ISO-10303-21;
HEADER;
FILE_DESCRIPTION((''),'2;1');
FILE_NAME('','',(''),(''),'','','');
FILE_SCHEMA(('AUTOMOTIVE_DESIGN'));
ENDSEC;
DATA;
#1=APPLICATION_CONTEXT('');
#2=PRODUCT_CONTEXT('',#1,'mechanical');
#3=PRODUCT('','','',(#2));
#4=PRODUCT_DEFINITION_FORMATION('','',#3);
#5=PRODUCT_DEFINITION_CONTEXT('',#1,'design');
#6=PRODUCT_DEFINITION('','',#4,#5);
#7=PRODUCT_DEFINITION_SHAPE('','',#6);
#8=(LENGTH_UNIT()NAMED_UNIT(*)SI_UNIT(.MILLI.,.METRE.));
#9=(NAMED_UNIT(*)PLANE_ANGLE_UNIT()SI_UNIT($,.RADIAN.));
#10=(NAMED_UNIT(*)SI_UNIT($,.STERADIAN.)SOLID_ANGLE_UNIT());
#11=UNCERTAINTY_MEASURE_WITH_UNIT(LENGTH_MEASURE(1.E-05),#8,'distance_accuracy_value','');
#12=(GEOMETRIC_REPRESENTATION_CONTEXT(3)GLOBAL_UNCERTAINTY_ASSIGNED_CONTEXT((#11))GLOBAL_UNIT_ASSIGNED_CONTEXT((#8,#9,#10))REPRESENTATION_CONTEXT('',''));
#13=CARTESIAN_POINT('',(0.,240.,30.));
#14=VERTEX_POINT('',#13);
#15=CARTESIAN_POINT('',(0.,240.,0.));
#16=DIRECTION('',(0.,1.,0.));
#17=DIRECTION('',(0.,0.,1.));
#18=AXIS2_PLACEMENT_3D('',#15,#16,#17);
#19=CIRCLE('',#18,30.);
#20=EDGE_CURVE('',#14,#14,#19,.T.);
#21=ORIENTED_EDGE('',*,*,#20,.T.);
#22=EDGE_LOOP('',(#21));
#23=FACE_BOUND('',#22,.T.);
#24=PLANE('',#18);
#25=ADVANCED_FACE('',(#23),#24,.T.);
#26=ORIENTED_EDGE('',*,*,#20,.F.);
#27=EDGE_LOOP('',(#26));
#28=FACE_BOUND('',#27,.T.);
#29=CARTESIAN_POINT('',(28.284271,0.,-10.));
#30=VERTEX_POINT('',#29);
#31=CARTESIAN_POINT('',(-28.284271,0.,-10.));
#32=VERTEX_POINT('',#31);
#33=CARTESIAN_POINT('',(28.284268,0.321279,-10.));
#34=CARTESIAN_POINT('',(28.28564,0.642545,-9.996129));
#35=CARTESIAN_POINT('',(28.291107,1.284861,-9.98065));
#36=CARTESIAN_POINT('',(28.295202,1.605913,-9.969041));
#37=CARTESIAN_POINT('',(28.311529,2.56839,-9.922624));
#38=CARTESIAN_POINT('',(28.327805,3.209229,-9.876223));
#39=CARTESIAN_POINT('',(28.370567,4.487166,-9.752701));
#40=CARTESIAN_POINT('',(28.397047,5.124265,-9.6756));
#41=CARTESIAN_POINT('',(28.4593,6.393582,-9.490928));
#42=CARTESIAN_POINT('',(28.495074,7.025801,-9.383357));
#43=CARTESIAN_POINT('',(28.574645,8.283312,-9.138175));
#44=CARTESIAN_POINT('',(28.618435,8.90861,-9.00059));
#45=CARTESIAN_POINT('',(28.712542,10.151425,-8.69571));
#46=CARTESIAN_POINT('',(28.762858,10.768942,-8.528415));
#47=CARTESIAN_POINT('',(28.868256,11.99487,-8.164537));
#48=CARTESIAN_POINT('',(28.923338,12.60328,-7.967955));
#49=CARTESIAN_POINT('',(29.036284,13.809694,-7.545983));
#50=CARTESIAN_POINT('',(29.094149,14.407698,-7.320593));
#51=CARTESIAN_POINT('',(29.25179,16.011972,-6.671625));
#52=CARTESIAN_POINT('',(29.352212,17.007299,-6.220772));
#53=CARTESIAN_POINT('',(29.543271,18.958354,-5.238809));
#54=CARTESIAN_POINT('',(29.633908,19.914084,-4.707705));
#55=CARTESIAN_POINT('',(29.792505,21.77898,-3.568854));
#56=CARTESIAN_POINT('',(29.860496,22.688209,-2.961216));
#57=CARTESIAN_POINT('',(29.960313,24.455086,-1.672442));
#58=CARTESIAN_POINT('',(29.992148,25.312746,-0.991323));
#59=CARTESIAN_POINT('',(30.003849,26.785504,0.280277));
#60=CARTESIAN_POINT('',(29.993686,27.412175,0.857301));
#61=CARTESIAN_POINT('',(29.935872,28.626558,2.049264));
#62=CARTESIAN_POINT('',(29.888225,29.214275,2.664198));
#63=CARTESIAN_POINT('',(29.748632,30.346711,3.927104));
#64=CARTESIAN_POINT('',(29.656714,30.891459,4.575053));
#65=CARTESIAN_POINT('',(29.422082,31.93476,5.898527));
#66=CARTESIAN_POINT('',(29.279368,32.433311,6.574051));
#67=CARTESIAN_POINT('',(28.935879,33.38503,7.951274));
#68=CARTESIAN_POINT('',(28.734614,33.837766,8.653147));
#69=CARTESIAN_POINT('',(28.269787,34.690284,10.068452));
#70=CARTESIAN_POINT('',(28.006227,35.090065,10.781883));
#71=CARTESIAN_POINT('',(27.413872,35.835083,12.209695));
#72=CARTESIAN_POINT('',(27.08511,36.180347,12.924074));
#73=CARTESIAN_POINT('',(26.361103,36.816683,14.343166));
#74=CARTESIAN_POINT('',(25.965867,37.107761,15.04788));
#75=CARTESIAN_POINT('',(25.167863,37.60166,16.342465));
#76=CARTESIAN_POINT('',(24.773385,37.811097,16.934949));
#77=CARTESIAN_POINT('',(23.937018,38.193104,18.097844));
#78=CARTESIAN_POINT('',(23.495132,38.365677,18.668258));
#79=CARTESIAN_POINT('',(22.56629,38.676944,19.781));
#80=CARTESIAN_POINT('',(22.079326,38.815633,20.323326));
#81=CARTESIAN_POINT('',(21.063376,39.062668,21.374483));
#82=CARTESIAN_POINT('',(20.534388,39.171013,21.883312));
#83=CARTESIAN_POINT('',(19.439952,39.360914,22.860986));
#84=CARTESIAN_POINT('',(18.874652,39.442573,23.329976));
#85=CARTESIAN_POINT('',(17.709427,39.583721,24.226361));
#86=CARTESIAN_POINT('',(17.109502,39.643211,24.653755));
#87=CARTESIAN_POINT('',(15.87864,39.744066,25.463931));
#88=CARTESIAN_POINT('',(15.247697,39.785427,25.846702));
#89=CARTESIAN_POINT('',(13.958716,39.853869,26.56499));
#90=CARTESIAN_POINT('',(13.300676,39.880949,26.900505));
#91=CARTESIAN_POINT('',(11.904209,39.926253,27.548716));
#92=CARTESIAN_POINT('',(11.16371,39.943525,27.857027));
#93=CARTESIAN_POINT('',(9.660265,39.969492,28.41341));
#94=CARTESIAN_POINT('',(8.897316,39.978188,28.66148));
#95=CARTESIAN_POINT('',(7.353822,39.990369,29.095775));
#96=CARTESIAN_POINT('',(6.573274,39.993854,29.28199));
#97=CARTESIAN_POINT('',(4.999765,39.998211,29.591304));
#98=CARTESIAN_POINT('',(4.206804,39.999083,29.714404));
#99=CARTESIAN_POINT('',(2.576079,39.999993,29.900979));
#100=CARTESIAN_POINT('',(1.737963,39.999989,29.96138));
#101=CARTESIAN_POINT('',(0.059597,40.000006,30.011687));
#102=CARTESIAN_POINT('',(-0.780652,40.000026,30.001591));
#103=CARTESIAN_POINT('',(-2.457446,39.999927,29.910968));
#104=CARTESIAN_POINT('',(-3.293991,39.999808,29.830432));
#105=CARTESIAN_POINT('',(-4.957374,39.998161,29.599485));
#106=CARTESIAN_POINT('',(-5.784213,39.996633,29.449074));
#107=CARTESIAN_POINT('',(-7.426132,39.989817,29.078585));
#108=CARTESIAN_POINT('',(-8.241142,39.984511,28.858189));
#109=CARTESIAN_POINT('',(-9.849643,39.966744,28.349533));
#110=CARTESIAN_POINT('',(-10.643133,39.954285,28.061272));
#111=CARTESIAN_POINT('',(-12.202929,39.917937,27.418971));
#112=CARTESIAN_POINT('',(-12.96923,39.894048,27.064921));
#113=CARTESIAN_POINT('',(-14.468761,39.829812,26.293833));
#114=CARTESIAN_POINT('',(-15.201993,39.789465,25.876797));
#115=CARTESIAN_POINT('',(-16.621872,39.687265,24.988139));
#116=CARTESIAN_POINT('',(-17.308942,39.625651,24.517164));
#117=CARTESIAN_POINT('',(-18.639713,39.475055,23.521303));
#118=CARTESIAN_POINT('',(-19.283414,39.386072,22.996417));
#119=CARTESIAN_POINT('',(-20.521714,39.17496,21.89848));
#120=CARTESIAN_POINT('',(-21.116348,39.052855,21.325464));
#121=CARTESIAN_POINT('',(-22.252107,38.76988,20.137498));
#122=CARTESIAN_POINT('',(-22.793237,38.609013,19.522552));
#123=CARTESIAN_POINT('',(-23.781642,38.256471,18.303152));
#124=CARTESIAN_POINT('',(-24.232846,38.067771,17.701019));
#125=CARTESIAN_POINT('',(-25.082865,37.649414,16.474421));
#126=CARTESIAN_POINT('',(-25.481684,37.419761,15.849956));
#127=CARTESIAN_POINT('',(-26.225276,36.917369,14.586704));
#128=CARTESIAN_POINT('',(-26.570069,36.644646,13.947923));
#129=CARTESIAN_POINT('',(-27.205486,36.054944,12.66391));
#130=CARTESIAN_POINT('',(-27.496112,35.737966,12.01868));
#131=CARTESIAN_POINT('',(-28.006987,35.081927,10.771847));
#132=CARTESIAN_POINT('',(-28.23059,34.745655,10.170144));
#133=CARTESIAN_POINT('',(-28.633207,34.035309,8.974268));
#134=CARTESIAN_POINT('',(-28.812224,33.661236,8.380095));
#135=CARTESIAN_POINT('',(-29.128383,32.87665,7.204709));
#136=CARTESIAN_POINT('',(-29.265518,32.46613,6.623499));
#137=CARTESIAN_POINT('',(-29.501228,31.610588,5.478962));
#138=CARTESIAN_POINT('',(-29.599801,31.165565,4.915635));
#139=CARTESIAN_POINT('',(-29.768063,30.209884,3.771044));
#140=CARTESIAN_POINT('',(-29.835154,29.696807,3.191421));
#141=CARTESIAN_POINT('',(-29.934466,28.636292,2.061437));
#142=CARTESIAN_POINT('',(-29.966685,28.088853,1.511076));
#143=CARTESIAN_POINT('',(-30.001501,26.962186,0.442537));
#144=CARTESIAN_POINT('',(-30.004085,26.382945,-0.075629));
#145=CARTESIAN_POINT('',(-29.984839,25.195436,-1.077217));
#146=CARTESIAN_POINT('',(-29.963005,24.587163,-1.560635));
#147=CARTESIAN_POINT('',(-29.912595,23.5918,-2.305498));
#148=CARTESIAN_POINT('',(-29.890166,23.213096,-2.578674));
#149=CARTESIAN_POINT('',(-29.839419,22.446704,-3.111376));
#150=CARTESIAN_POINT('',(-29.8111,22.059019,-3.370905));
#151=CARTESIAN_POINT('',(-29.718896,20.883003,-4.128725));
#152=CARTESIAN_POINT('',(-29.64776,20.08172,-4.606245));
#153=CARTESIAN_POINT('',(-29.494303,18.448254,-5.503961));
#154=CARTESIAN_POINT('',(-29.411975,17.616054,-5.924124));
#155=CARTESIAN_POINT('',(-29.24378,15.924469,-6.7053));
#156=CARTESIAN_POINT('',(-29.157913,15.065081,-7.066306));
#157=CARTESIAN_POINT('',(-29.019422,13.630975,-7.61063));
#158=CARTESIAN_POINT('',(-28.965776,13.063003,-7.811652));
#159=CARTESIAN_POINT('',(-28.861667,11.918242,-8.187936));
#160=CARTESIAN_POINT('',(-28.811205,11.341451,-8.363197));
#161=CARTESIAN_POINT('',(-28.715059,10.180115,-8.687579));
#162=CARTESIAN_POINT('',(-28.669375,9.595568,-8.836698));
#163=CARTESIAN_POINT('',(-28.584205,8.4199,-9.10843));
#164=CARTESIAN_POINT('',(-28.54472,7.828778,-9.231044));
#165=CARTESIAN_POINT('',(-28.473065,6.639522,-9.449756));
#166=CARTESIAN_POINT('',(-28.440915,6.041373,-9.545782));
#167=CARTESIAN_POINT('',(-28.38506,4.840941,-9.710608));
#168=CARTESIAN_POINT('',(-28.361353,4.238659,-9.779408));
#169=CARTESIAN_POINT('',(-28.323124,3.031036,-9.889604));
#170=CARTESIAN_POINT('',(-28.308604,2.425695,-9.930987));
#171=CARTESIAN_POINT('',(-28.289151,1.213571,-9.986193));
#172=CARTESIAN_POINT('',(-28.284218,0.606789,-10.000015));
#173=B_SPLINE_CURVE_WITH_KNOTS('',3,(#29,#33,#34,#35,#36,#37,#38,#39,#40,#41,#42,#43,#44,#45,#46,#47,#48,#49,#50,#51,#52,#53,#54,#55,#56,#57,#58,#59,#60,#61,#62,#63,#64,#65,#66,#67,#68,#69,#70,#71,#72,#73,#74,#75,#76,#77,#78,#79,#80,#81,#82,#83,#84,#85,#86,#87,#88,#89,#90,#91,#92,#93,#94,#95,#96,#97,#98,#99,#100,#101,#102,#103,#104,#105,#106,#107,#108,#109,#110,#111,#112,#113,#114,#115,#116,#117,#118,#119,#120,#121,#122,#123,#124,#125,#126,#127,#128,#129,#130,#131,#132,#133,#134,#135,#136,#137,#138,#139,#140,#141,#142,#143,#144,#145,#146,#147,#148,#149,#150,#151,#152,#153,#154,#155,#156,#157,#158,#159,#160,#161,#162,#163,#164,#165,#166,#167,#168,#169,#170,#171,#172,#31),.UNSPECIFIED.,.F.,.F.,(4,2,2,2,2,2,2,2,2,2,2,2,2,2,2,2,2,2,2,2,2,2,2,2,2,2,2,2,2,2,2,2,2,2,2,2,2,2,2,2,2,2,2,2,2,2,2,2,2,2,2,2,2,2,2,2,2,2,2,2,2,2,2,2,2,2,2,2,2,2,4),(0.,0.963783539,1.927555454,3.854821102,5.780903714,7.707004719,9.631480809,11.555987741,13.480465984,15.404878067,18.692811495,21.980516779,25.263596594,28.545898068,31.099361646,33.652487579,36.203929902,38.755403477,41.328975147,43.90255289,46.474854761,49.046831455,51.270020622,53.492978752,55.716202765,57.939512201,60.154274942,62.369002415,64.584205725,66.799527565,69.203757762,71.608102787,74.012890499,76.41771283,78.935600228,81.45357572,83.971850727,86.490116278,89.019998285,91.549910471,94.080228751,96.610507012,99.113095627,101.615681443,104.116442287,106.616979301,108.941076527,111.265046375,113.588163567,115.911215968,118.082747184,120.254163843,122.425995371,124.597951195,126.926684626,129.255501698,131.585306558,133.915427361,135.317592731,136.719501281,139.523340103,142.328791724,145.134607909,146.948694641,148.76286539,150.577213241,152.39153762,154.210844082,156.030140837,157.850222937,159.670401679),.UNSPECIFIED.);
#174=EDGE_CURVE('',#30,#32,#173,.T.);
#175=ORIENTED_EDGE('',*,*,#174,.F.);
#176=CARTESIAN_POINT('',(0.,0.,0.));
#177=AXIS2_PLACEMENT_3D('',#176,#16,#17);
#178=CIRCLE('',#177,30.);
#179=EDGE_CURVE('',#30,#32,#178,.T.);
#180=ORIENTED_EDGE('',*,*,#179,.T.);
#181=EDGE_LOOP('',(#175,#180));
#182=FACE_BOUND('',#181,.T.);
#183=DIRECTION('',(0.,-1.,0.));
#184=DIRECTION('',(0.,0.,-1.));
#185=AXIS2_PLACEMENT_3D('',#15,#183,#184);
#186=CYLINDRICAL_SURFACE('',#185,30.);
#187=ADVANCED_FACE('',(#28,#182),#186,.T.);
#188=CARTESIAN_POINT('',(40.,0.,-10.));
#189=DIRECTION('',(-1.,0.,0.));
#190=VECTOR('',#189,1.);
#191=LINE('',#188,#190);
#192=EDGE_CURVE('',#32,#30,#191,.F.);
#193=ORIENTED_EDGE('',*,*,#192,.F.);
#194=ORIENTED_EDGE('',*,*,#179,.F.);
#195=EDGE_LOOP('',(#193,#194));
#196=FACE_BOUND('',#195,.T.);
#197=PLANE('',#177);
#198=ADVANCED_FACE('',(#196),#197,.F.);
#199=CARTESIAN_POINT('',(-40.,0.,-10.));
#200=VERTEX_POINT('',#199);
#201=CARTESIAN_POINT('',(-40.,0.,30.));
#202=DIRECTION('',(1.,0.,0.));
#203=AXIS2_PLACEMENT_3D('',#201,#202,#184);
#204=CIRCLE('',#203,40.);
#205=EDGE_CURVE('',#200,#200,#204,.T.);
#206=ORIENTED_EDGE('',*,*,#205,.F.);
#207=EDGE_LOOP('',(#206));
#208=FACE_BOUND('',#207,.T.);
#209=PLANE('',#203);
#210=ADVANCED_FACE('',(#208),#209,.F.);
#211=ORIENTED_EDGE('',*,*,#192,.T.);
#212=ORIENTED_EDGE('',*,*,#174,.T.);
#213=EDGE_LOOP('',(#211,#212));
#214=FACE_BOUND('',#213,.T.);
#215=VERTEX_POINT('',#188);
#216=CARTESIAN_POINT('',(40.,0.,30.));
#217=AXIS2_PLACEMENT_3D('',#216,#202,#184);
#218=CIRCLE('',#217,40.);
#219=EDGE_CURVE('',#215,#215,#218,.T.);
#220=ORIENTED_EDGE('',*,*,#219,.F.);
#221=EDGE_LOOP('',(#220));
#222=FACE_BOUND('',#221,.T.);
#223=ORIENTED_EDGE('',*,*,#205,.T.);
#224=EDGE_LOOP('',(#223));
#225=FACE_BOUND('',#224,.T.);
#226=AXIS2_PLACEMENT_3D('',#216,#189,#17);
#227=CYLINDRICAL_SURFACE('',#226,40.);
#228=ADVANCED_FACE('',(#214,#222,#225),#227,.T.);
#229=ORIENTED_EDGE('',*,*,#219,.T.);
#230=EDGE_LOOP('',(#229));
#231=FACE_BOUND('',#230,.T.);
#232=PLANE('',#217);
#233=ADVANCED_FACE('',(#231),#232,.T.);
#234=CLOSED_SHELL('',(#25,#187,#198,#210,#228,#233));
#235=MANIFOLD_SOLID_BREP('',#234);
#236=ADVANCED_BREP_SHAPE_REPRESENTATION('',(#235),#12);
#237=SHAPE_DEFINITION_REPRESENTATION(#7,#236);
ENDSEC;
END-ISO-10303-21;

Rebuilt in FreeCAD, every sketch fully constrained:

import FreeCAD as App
import Part
import Sketcher

V = App.Vector

doc = App.newDocument("Part")
body = doc.addObject("PartDesign::Body", "Body")

# Sketch on XZ plane
sketch1 = body.newObject("Sketcher::SketchObject", "Sketch")
sketch1.AttachmentSupport = (doc.getObject("XZ_Plane"), [""])
sketch1.MapMode = "FlatFace"
sketch1.addGeometry(Part.Circle(V(0, 0, 0), V(0, 0, 1), 30), False)
sketch1.addConstraint(Sketcher.Constraint("Coincident", 0, 3, -1, 1))
sketch1.addConstraint(Sketcher.Constraint("Diameter", 0, 60.0))
pad1 = body.newObject("PartDesign::Pad", "Pad")
pad1.Profile = sketch1
pad1.Length = 240
pad1.Reversed = True

# Sketch on YZ plane
sketch2 = body.newObject("Sketcher::SketchObject", "Sketch001")
sketch2.AttachmentSupport = (doc.getObject("YZ_Plane"), [""])
sketch2.MapMode = "FlatFace"
sketch2.addGeometry(Part.Circle(V(0, 30, 0), V(0, 0, 1), 40), False)
sketch2.addConstraint(Sketcher.Constraint("PointOnObject", 0, 3, -2))
sketch2.addConstraint(Sketcher.Constraint("Diameter", 0, 80.0))
sketch2.addConstraint(Sketcher.Constraint("DistanceY", -1, 1, 0, 3, 30.0))
pad2 = body.newObject("PartDesign::Pad", "Pad001")
pad2.Profile = sketch2
pad2.Length = 80
pad2.Midplane = True

doc.recompute()
